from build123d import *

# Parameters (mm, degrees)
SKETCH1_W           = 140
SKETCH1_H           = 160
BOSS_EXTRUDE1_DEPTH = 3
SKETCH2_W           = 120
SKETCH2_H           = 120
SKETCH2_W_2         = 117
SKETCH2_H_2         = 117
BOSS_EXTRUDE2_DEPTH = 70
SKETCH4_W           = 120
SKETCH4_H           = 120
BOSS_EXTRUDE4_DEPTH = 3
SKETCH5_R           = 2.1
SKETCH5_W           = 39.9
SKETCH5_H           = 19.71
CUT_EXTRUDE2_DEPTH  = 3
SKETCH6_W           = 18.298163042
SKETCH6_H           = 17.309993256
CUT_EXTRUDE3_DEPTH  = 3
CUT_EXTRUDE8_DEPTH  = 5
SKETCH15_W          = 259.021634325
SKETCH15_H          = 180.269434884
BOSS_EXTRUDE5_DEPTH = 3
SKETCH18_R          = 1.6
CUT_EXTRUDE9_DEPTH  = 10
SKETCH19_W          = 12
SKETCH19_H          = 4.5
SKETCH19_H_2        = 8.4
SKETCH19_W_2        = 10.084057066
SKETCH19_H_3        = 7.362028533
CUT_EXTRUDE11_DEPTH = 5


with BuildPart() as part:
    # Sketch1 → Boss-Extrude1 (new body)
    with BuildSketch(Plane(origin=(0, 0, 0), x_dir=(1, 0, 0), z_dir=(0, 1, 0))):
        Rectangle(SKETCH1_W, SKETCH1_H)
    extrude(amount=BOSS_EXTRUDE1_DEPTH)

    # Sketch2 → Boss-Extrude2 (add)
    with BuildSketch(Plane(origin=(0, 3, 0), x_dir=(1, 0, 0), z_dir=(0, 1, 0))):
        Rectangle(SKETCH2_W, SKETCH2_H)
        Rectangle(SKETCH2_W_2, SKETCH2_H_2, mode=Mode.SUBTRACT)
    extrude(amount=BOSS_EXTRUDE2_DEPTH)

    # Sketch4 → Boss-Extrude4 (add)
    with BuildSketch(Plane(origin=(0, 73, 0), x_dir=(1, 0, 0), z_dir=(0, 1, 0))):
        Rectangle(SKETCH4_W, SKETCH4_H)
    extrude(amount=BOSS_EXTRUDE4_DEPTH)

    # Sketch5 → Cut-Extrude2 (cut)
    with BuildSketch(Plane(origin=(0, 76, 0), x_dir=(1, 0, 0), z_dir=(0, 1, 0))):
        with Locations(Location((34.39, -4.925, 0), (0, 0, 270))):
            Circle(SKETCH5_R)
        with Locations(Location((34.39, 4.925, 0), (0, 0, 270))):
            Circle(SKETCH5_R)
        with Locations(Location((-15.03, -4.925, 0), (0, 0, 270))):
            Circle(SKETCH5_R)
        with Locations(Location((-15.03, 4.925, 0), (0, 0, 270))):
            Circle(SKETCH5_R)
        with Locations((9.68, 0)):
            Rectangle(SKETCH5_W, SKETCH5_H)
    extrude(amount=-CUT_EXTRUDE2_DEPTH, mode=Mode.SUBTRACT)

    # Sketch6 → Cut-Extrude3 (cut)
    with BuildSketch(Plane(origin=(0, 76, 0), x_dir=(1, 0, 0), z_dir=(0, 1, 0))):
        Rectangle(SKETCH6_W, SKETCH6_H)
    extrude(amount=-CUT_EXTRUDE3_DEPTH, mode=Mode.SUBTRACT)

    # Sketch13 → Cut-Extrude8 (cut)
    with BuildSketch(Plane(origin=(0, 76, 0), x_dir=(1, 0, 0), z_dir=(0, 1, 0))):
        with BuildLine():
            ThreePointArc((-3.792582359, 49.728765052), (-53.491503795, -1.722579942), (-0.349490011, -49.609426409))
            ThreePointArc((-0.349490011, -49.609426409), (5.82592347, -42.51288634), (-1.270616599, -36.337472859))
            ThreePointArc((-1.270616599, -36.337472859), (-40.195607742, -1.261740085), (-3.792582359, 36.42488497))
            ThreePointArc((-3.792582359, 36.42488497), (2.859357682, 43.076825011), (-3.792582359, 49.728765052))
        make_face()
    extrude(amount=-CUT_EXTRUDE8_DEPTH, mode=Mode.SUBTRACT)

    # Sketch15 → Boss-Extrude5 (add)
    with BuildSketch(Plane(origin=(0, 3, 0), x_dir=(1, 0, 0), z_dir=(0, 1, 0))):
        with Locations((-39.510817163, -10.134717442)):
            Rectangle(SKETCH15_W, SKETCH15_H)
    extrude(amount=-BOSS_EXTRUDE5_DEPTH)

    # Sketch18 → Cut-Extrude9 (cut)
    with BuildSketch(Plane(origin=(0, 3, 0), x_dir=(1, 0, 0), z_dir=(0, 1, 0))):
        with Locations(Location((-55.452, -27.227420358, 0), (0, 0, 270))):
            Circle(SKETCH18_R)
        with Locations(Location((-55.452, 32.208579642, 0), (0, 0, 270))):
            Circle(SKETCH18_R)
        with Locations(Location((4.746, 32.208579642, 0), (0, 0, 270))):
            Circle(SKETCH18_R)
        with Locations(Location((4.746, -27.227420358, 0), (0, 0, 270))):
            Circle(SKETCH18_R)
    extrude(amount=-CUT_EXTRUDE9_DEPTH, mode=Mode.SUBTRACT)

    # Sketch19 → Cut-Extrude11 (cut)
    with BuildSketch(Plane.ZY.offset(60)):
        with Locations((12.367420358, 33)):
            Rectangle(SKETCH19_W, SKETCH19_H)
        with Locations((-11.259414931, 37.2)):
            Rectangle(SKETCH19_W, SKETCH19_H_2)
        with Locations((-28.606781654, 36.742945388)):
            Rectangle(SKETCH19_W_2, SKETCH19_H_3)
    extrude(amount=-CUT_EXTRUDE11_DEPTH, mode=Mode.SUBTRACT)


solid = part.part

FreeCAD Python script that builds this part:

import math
import FreeCAD as App
import Part
import Sketcher

V = App.Vector
Q = App.Units.Quantity


def add_polygon(sketch, points):
    """Adds a closed chain of lines whose ends are joined by coincident constraints."""
    first, n = sketch.GeometryCount, len(points)
    for a, b in zip(points, points[1:] + points[:1]):
        sketch.addGeometry(Part.LineSegment(App.Vector(*a, 0), App.Vector(*b, 0)), False)
    for i in range(n):
        sketch.addConstraint(Sketcher.Constraint("Coincident", first + i, 2, first + (i + 1) % n, 1))

doc = App.newDocument("Part")
params = doc.addObject("Spreadsheet::Sheet", "Params")
for row, (alias, value) in enumerate([
    ("sketch1_width", "140 mm"),
    ("sketch1_height", "160 mm"),
    ("pad1_length", "3 mm"),
    ("sketch2_width", "120 mm"),
    ("sketch2_width2", "117 mm"),
    ("pad2_length", "70 mm"),
    ("sketch3_width", "120 mm"),
    ("pad3_length", "3 mm"),
    ("sketch4_diameter", "4.2 mm"),
    ("sketch4_width", "39.9 mm"),
    ("sketch4_height", "19.71 mm"),
    ("pocket1_length", "3 mm"),
    ("pocket2_length", "3 mm"),
    ("pocket3_length", "5 mm"),
    ("pad4_length", "3 mm"),
    ("sketch8_diameter", "3.2 mm"),
    ("pocket4_length", "10 mm"),
    ("sketch9_height", "12 mm"),
    ("sketch9_width", "4.5 mm"),
    ("sketch9_width2", "8.4 mm"),
    ("pocket5_length", "5 mm"),
], start=1):
    params.set(f"A{row}", alias)
    params.set(f"B{row}", "=" + value)
    params.setAlias(f"B{row}", alias)

body = doc.addObject("PartDesign::Body", "Body")

# Sketch on XZ plane
sketch1 = body.newObject("Sketcher::SketchObject", "Sketch")
sketch1.AttachmentSupport = (doc.getObject("XZ_Plane"), [""])
sketch1.MapMode = "FlatFace"
add_polygon(sketch1, [(-70, -80), (-70, 80), (70, 80), (70, -80)])  # lines 0-3
sketch1.addConstraint([
    Sketcher.Constraint("Vertical", 0),
    Sketcher.Constraint("Horizontal", 1),
    Sketcher.Constraint("Vertical", 2),
    Sketcher.Constraint("Horizontal", 3),
    Sketcher.Constraint("Symmetric", 0, 2, 2, 2, -1, 1),
    Sketcher.Constraint("DistanceX", 1, 1, 1, 2, Q("140 mm")),
    Sketcher.Constraint("DistanceY", 0, 1, 0, 2, Q("160 mm")),
])
sketch1.setExpression("Constraints[9]", "Params.sketch1_width")
sketch1.setExpression("Constraints[10]", "Params.sketch1_height")
pad1 = body.newObject("PartDesign::Pad", "Pad")
pad1.Profile = sketch1
pad1.setExpression("Length", "Params.pad1_length")
pad1.Reversed = True

# Sketch on XZ plane
sketch2 = body.newObject("Sketcher::SketchObject", "Sketch001")
sketch2.AttachmentSupport = (doc.getObject("XZ_Plane"), [""])
sketch2.MapMode = "FlatFace"
sketch2.AttachmentOffset = App.Placement(V(0, 0, -3), App.Rotation())
add_polygon(sketch2, [(-60, -60), (-60, 60), (60, 60), (60, -60)])  # lines 0-3
add_polygon(sketch2, [(58, 58), (-58, 58), (-58, -58), (58, -58)])  # lines 4-7
sketch2.addConstraint([
    Sketcher.Constraint("Vertical", 0),
    Sketcher.Constraint("Horizontal", 1),
    Sketcher.Constraint("Vertical", 2),
    Sketcher.Constraint("Horizontal", 3),
    Sketcher.Constraint("Horizontal", 4),
    Sketcher.Constraint("Vertical", 5),
    Sketcher.Constraint("Horizontal", 6),
    Sketcher.Constraint("Vertical", 7),
    Sketcher.Constraint("Symmetric", 0, 2, 2, 2, -1, 1),
    Sketcher.Constraint("Symmetric", 4, 2, 6, 2, -1, 1),
    Sketcher.Constraint("Equal", 3, 0),
    Sketcher.Constraint("Equal", 6, 5),
    Sketcher.Constraint("DistanceX", 1, 1, 1, 2, Q("120 mm")),
    Sketcher.Constraint("DistanceX", 4, 2, 4, 1, Q("117 mm")),
])
sketch2.setExpression("Constraints[20]", "Params.sketch2_width")
sketch2.setExpression("Constraints[21]", "Params.sketch2_width2")
pad2 = body.newObject("PartDesign::Pad", "Pad001")
pad2.Profile = sketch2
pad2.setExpression("Length", "Params.pad2_length")
pad2.Reversed = True

# Sketch on XZ plane
sketch3 = body.newObject("Sketcher::SketchObject", "Sketch002")
sketch3.AttachmentSupport = (doc.getObject("XZ_Plane"), [""])
sketch3.MapMode = "FlatFace"
sketch3.AttachmentOffset = App.Placement(V(0, 0, -73), App.Rotation())
add_polygon(sketch3, [(-60, -60), (-60, 60), (60, 60), (60, -60)])  # lines 0-3
sketch3.addConstraint([
    Sketcher.Constraint("Vertical", 0),
    Sketcher.Constraint("Horizontal", 1),
    Sketcher.Constraint("Vertical", 2),
    Sketcher.Constraint("Horizontal", 3),
    Sketcher.Constraint("Symmetric", 0, 2, 2, 2, -1, 1),
    Sketcher.Constraint("Equal", 3, 0),
    Sketcher.Constraint("DistanceX", 1, 1, 1, 2, Q("120 mm")),
])
sketch3.setExpression("Constraints[10]", "Params.sketch3_width")
pad3 = body.newObject("PartDesign::Pad", "Pad002")
pad3.Profile = sketch3
pad3.setExpression("Length", "Params.pad3_length")
pad3.Reversed = True

# Sketch on XZ plane
sketch4 = body.newObject("Sketcher::SketchObject", "Sketch003")
sketch4.AttachmentSupport = (doc.getObject("XZ_Plane"), [""])
sketch4.MapMode = "FlatFace"
sketch4.AttachmentOffset = App.Placement(V(0, 0, -76), App.Rotation())
sketch4.addGeometry(Part.Circle(V(34.4, 4.9, 0), V(0, 0, 1), 2.1), False)  # 0
sketch4.addGeometry(Part.Circle(V(34.4, -4.9, 0), V(0, 0, 1), 2.1), False)  # 1
sketch4.addGeometry(Part.Circle(V(-15, 4.9, 0), V(0, 0, 1), 2.1), False)  # 2
sketch4.addGeometry(Part.Circle(V(-15, -4.9, 0), V(0, 0, 1), 2.1), False)  # 3
add_polygon(sketch4, [(-10.3, -9.9), (-10.3, 9.9), (29.6, 9.9), (29.6, -9.9)])  # lines 4-7
sketch4.addConstraint([
    Sketcher.Constraint("Vertical", 4),
    Sketcher.Constraint("Horizontal", 5),
    Sketcher.Constraint("Vertical", 6),
    Sketcher.Constraint("Horizontal", 7),
    Sketcher.Constraint("Equal", 0, 1),
    Sketcher.Constraint("Equal", 1, 2),
    Sketcher.Constraint("Equal", 2, 3),
    Sketcher.Constraint("Symmetric", 0, 3, 1, 3, -1),
    Sketcher.Constraint("Symmetric", 2, 3, 3, 3, -1),
    Sketcher.Constraint("Horizontal", 0, 3, 2, 3),
    Sketcher.Constraint("Diameter", 0, Q("4.2 mm")),
    Sketcher.Constraint("DistanceX", 5, 1, 5, 2, Q("39.9 mm")),
    Sketcher.Constraint("DistanceY", 4, 1, 4, 2, Q("19.71 mm")),
    Sketcher.Constraint("DistanceX", -1, 1, 0, 3, Q("34.39 mm")),
    Sketcher.Constraint("DistanceX", 2, 3, -1, 1, Q("15.03 mm")),
    Sketcher.Constraint("DistanceX", 4, 2, -1, 1, Q("10.27 mm")),
    Sketcher.Constraint("DistanceY", 1, 3, 0, 3, Q("9.85 mm")),
    Sketcher.Constraint("DistanceY", 2, 3, 4, 2, Q("4.93 mm")),
])
sketch4.setExpression("Constraints[14]", "Params.sketch4_diameter")
sketch4.setExpression("Constraints[15]", "Params.sketch4_width")
sketch4.setExpression("Constraints[16]", "Params.sketch4_height")
pocket1 = body.newObject("PartDesign::Pocket", "Pocket")
pocket1.Profile = sketch4
pocket1.setExpression("Length", "Params.pocket1_length")
pocket1.Reversed = True

# Sketch on XZ plane
sketch5 = body.newObject("Sketcher::SketchObject", "Sketch004")
sketch5.AttachmentSupport = (doc.getObject("XZ_Plane"), [""])
sketch5.MapMode = "FlatFace"
sketch5.AttachmentOffset = App.Placement(V(0, 0, -76), App.Rotation())
add_polygon(sketch5, [(-9, -9), (-9, 9), (9, 9), (9, -9)])  # lines 0-3
sketch5.addConstraint([
    Sketcher.Constraint("Vertical", 0),
    Sketcher.Constraint("Horizontal", 1),
    Sketcher.Constraint("Vertical", 2),
    Sketcher.Constraint("Horizontal", 3),
    Sketcher.Constraint("Symmetric", 0, 2, 2, 2, -1, 1),
    Sketcher.Constraint("DistanceX", 1, 1, 1, 2, Q("18.298163 mm")),
    Sketcher.Constraint("DistanceY", 0, 1, 0, 2, Q("17.309993 mm")),
])
pocket2 = body.newObject("PartDesign::Pocket", "Pocket001")
pocket2.Profile = sketch5
pocket2.setExpression("Length", "Params.pocket2_length")
pocket2.Reversed = True

# Sketch on XZ plane
sketch6 = body.newObject("Sketcher::SketchObject", "Sketch005")
sketch6.AttachmentSupport = (doc.getObject("XZ_Plane"), [""])
sketch6.MapMode = "FlatFace"
sketch6.AttachmentOffset = App.Placement(V(0, 0, -76), App.Rotation())
sketch6.addGeometry([
    Part.ArcOfCircle(Part.Circle(V(-4, 0, 0), V(0, 0, 1), 50), math.radians(86), math.radians(270)),
    Part.ArcOfCircle(Part.Circle(V(-1, 43, 0), V(0, 0, 1), 7), math.radians(-94), math.radians(86)),
    Part.ArcOfCircle(Part.Circle(V(-4, 0, 0), V(0, 0, 1), 36), math.radians(86), math.radians(270)),
    Part.ArcOfCircle(Part.Circle(V(-4, -43, 0), V(0, 0, 1), 7), math.radians(-90), math.radians(90)),
], False)
sketch6.addConstraint([
    Sketcher.Constraint("Tangent", 0, 1, 1, 2),
    Sketcher.Constraint("Tangent", 1, 1, 2, 1),
    Sketcher.Constraint("Tangent", 2, 2, 3, 2),
    Sketcher.Constraint("Tangent", 3, 1, 0, 2),
    Sketcher.Constraint("Coincident", 2, 3, 0, 3),
    Sketcher.Constraint("PointOnObject", 0, 3, -1),
    Sketcher.Constraint("Vertical", 2, 3, 3, 3),
    Sketcher.Constraint("Radius", 1, Q("6.65194 mm")),
    Sketcher.Constraint("Radius", 0, Q("49.728765 mm")),
    Sketcher.Constraint("DistanceY", -1, 1, 1, 3, Q("42.97345 mm")),
    Sketcher.Constraint("DistanceX", 0, 1, -1, 1, Q("0.34949 mm")),
])
pocket3 = body.newObject("PartDesign::Pocket", "Pocket002")
pocket3.Profile = sketch6
pocket3.setExpression("Length", "Params.pocket3_length")
pocket3.Reversed = True

# Sketch on XZ plane
sketch7 = body.newObject("Sketcher::SketchObject", "Sketch006")
sketch7.AttachmentSupport = (doc.getObject("XZ_Plane"), [""])
sketch7.MapMode = "FlatFace"
sketch7.AttachmentOffset = App.Placement(V(0, 0, -3), App.Rotation())
add_polygon(sketch7, [(-169, -80), (-169, 100), (90, 100), (90, -80)])  # lines 0-3
sketch7.addConstraint([
    Sketcher.Constraint("Vertical", 0),
    Sketcher.Constraint("Horizontal", 1),
    Sketcher.Constraint("Vertical", 2),
    Sketcher.Constraint("Horizontal", 3),
    Sketcher.Constraint("DistanceX", -1, 1, 1, 2, Q("90 mm")),
    Sketcher.Constraint("DistanceY", 2, 2, -1, 1, Q("80 mm")),
    Sketcher.Constraint("DistanceX", 1, 1, 1, 2, Q("259.021634 mm")),
    Sketcher.Constraint("DistanceY", 0, 1, 0, 2, Q("180.269435 mm")),
])
pad4 = body.newObject("PartDesign::Pad", "Pad003")
pad4.Profile = sketch7
pad4.setExpression("Length", "Params.pad4_length")

# Sketch on XZ plane
sketch8 = body.newObject("Sketcher::SketchObject", "Sketch007")
sketch8.AttachmentSupport = (doc.getObject("XZ_Plane"), [""])
sketch8.MapMode = "FlatFace"
sketch8.AttachmentOffset = App.Placement(V(0, 0, -3), App.Rotation())
sketch8.addGeometry([
    Part.Circle(V(-55.5, 27.2, 0), V(0, 0, 1), 1.6),
    Part.Circle(V(-55.5, -32.2, 0), V(0, 0, 1), 1.6),
    Part.Circle(V(4.7, -32.2, 0), V(0, 0, 1), 1.6),
    Part.Circle(V(4.7, 27.2, 0), V(0, 0, 1), 1.6),
], False)
sketch8.addConstraint([
    Sketcher.Constraint("Equal", 0, 1),
    Sketcher.Constraint("Equal", 1, 2),
    Sketcher.Constraint("Equal", 2, 3),
    Sketcher.Constraint("Horizontal", 1, 3, 2, 3),
    Sketcher.Constraint("Horizontal", 0, 3, 3, 3),
    Sketcher.Constraint("Vertical", 0, 3, 1, 3),
    Sketcher.Constraint("Vertical", 2, 3, 3, 3),
    Sketcher.Constraint("Diameter", 0, Q("3.2 mm")),
    Sketcher.Constraint("DistanceX", 0, 3, -1, 1, Q("55.452 mm")),
    Sketcher.Constraint("DistanceX", -1, 1, 2, 3, Q("4.746 mm")),
    Sketcher.Constraint("DistanceY", 1, 3, 0, 3, Q("59.436 mm")),
    Sketcher.Constraint("DistanceY", -1, 1, 0, 3, Q("27.22742 mm")),
])
sketch8.setExpression("Constraints[7]", "Params.sketch8_diameter")
pocket4 = body.newObject("PartDesign::Pocket", "Pocket003")
pocket4.Profile = sketch8
pocket4.setExpression("Length", "Params.pocket4_length")
pocket4.Reversed = True

# Sketch on YZ plane
sketch9 = body.newObject("Sketcher::SketchObject", "Sketch008")
sketch9.AttachmentSupport = (doc.getObject("YZ_Plane"), [""])
sketch9.MapMode = "FlatFace"
sketch9.AttachmentOffset = App.Placement(V(0, 0, -60), App.Rotation())
add_polygon(sketch9, [(35.2, 6.4), (30.8, 6.4), (30.8, 18.4), (35.2, 18.4)])  # lines 0-3
add_polygon(sketch9, [(41.4, -17.3), (33, -17.3), (33, -5.3), (41.4, -5.3)])  # lines 4-7
add_polygon(sketch9, [(40.4, -33.6), (33.1, -33.6), (33.1, -23.6), (40.4, -23.6)])  # lines 8-11
sketch9.addConstraint([
    Sketcher.Constraint("Horizontal", 0),
    Sketcher.Constraint("Vertical", 1),
    Sketcher.Constraint("Horizontal", 2),
    Sketcher.Constraint("Vertical", 3),
    Sketcher.Constraint("Horizontal", 4),
    Sketcher.Constraint("Vertical", 5),
    Sketcher.Constraint("Horizontal", 6),
    Sketcher.Constraint("Vertical", 7),
    Sketcher.Constraint("Horizontal", 8),
    Sketcher.Constraint("Vertical", 9),
    Sketcher.Constraint("Horizontal", 10),
    Sketcher.Constraint("Vertical", 11),
    Sketcher.Constraint("Equal", 3, 5),
    Sketcher.Constraint("DistanceY", 1, 1, 1, 2, Q("12 mm")),
    Sketcher.Constraint("DistanceX", 0, 2, 0, 1, Q("4.5 mm")),
    Sketcher.Constraint("DistanceX", 4, 2, 4, 1, Q("8.4 mm")),
    Sketcher.Constraint("DistanceX", -1, 1, 4, 2, Q("33 mm")),
    Sketcher.Constraint("DistanceX", -1, 1, 0, 2, Q("30.75 mm")),
    Sketcher.Constraint("DistanceX", 8, 2, 8, 1, Q("7.362029 mm")),
    Sketcher.Constraint("DistanceY", 9, 1, 9, 2, Q("10.084057 mm")),
    Sketcher.Constraint("DistanceY", -1, 1, 0, 2, Q("6.36742 mm")),
    Sketcher.Constraint("DistanceX", -1, 1, 8, 2, Q("33.061931 mm")),
    Sketcher.Constraint("DistanceY", 8, 2, -1, 1, Q("33.64881 mm")),
    Sketcher.Constraint("DistanceY", 9, 2, 4, 2, Q("6.305338 mm")),
])
sketch9.setExpression("Constraints[25]", "Params.sketch9_height")
sketch9.setExpression("Constraints[26]", "Params.sketch9_width")
sketch9.setExpression("Constraints[27]", "Params.sketch9_width2")
pocket5 = body.newObject("PartDesign::Pocket", "Pocket004")
pocket5.Profile = sketch9
pocket5.setExpression("Length", "Params.pocket5_length")
pocket5.Reversed = True

doc.recompute()
